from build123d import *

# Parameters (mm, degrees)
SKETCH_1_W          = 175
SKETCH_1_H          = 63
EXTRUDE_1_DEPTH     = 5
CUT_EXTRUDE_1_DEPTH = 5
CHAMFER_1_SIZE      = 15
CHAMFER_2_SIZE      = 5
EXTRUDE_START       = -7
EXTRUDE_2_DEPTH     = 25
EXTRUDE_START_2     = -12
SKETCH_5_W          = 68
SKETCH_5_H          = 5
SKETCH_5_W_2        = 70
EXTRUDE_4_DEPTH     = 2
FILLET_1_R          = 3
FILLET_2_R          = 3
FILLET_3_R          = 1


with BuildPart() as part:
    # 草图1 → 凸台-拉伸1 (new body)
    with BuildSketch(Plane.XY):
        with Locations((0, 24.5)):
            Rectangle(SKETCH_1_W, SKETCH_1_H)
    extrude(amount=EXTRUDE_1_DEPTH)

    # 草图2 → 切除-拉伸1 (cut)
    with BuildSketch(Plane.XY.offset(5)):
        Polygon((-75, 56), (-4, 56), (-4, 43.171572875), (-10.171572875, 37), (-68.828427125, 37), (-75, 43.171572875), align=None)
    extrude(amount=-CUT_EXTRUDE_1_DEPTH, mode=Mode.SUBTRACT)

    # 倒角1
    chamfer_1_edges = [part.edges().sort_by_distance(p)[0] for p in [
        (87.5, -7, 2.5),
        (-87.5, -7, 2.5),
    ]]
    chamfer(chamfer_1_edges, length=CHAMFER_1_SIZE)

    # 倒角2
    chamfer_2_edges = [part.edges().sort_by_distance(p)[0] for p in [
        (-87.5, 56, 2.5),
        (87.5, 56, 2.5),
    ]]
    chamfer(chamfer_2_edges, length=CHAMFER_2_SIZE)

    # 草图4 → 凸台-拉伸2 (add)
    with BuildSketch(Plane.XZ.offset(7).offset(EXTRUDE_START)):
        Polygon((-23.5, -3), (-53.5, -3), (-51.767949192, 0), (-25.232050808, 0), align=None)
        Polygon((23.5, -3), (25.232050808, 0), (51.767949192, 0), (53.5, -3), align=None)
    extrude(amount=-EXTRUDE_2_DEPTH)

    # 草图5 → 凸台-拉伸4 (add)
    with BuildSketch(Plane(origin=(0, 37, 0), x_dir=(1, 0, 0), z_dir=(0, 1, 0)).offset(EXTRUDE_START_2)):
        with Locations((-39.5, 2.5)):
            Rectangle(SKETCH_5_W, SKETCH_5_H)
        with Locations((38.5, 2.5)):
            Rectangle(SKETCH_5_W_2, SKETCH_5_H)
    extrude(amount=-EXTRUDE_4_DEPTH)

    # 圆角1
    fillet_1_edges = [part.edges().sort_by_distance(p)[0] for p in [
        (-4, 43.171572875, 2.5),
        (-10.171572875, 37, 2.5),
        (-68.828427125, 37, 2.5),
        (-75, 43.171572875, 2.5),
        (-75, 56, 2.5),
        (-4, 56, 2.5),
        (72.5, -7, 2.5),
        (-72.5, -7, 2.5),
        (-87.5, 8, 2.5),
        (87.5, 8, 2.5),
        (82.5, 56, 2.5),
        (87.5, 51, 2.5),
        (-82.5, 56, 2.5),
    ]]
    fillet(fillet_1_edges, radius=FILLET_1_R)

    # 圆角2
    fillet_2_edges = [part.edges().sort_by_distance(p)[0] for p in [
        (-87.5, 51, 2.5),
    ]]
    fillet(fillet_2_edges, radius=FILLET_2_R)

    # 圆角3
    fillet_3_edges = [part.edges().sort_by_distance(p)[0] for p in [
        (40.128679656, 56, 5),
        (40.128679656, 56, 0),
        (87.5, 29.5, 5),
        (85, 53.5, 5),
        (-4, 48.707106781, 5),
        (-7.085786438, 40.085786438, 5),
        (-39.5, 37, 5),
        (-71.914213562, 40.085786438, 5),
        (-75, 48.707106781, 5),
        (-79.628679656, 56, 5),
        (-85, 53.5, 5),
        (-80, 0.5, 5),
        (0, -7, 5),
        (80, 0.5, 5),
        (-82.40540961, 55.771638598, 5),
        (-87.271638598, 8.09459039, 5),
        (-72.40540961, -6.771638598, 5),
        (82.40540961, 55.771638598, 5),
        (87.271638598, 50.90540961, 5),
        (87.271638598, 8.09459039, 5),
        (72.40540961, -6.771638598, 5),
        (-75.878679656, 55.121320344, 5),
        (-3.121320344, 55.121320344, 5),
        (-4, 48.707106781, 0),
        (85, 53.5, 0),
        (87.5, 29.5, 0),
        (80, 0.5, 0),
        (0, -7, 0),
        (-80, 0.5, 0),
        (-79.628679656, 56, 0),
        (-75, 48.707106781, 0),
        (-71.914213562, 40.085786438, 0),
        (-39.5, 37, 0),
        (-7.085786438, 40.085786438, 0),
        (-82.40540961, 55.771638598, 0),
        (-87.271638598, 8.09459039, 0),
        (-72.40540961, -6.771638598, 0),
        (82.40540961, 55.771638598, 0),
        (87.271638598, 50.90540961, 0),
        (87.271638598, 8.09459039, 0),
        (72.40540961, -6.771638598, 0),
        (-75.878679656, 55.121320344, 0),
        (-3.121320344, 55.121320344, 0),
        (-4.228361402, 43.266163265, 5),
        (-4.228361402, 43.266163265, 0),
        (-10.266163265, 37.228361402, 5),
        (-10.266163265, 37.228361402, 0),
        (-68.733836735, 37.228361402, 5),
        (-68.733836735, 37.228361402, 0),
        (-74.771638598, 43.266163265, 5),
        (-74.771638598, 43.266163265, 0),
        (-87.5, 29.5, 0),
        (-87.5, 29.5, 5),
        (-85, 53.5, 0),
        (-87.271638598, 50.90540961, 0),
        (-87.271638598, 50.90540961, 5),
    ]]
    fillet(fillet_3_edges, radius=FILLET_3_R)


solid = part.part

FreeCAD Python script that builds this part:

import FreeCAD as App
import Part
import Sketcher

V = App.Vector
Q = App.Units.Quantity


def edges_at(feature, points):
    """Names of the edges that pass closest to the given points."""
    edges = feature.Shape.Edges
    near = lambda p: min(range(len(edges)), key=lambda i: edges[i].distToShape(Part.Vertex(*p))[0])
    return sorted({f"Edge{near(p) + 1}" for p in points})

doc = App.newDocument("Part")
params = doc.addObject("Spreadsheet::Sheet", "Params")
for row, (alias, value) in enumerate([
    ("sketch1_width", "175 mm"),
    ("sketch1_height", "63 mm"),
    ("pad1_length", "5 mm"),
    ("sketch2_width", "71 mm"),
    ("pocket1_length", "5 mm"),
    ("chamfer_size", "15 mm"),
    ("chamfer2_size", "5 mm"),
    ("sketch3_width", "30 mm"),
    ("pad2_length", "25 mm"),
    ("sketch4_width", "68 mm"),
    ("sketch4_width2", "70 mm"),
    ("sketch4_height", "5 mm"),
    ("pad3_length", "2 mm"),
    ("fillet_radius", "3 mm"),
    ("fillet2_radius", "3 mm"),
    ("fillet3_radius", "1 mm"),
], start=1):
    params.set(f"A{row}", alias)
    params.set(f"B{row}", "=" + value)
    params.setAlias(f"B{row}", alias)

body = doc.addObject("PartDesign::Body", "Body")

sketch1 = doc.addObject("Sketcher::SketchObject", "Sketch")
body.addObject(sketch1)
sketch1.AttachmentSupport = (doc.XY_Plane, [""])
sketch1.MapMode = "FlatFace"
sketch1.addGeometry(Part.LineSegment(V(-88, 56, 0), V(-88, -7, 0)), False)
sketch1.addGeometry(Part.LineSegment(V(-88, -7, 0), V(88, -7, 0)), False)
sketch1.addGeometry(Part.LineSegment(V(88, -7, 0), V(88, 56, 0)), False)
sketch1.addGeometry(Part.LineSegment(V(88, 56, 0), V(-88, 56, 0)), False)
sketch1.addConstraint(Sketcher.Constraint("Coincident", 0, 2, 1, 1))
sketch1.addConstraint(Sketcher.Constraint("Coincident", 1, 2, 2, 1))
sketch1.addConstraint(Sketcher.Constraint("Coincident", 2, 2, 3, 1))
sketch1.addConstraint(Sketcher.Constraint("Coincident", 3, 2, 0, 1))
sketch1.addConstraint(Sketcher.Constraint("Vertical", 0))
sketch1.addConstraint(Sketcher.Constraint("Horizontal", 1))
sketch1.addConstraint(Sketcher.Constraint("Vertical", 2))
sketch1.addConstraint(Sketcher.Constraint("Horizontal", 3))
sketch1.addConstraint(Sketcher.Constraint("DistanceX", 1, 1, 1, 2, Q("175 mm")))
sketch1.addConstraint(Sketcher.Constraint("DistanceY", 0, 2, 0, 1, Q("63 mm")))
sketch1.addConstraint(Sketcher.Constraint("DistanceY", 0, 2, -1, 1, Q("7 mm")))
sketch1.addConstraint(Sketcher.Constraint("DistanceX", 0, 2, -1, 1, Q("87.5 mm")))
sketch1.setExpression("Constraints[8]", "Params.sketch1_width")
sketch1.setExpression("Constraints[9]", "Params.sketch1_height")
pad1 = doc.addObject("PartDesign::Pad", "Pad")
body.addObject(pad1)
pad1.Profile = sketch1
pad1.setExpression("Length", "Params.pad1_length")

sketch2 = doc.addObject("Sketcher::SketchObject", "Sketch001")
body.addObject(sketch2)
sketch2.AttachmentSupport = (doc.XY_Plane, [""])
sketch2.MapMode = "FlatFace"
sketch2.AttachmentOffset = App.Placement(V(0, 0, 5), App.Rotation())
sketch2.addGeometry(Part.LineSegment(V(-4, 56, 0), V(-75, 56, 0)), False)
sketch2.addGeometry(Part.LineSegment(V(-75, 56, 0), V(-75, 43, 0)), False)
sketch2.addGeometry(Part.LineSegment(V(-75, 43, 0), V(-69, 37, 0)), False)
sketch2.addGeometry(Part.LineSegment(V(-69, 37, 0), V(-10, 37, 0)), False)
sketch2.addGeometry(Part.LineSegment(V(-10, 37, 0), V(-4, 43, 0)), False)
sketch2.addGeometry(Part.LineSegment(V(-4, 43, 0), V(-4, 56, 0)), False)
sketch2.addConstraint(Sketcher.Constraint("Coincident", 0, 2, 1, 1))
sketch2.addConstraint(Sketcher.Constraint("Coincident", 1, 2, 2, 1))
sketch2.addConstraint(Sketcher.Constraint("Coincident", 2, 2, 3, 1))
sketch2.addConstraint(Sketcher.Constraint("Coincident", 3, 2, 4, 1))
sketch2.addConstraint(Sketcher.Constraint("Coincident", 4, 2, 5, 1))
sketch2.addConstraint(Sketcher.Constraint("Coincident", 5, 2, 0, 1))
sketch2.addConstraint(Sketcher.Constraint("Horizontal", 0))
sketch2.addConstraint(Sketcher.Constraint("Vertical", 1))
sketch2.addConstraint(Sketcher.Constraint("Horizontal", 3))
sketch2.addConstraint(Sketcher.Constraint("Vertical", 5))
sketch2.addConstraint(Sketcher.Constraint("Perpendicular", 2, 4))
sketch2.addConstraint(Sketcher.Constraint("Horizontal", 1, 2, 4, 2))
sketch2.addConstraint(Sketcher.Constraint("Equal", 2, 4))
sketch2.addConstraint(Sketcher.Constraint("DistanceX", 0, 2, 0, 1, Q("71 mm")))
sketch2.addConstraint(Sketcher.Constraint("DistanceX", 0, 2, -1, 1, Q("75 mm")))
sketch2.addConstraint(Sketcher.Constraint("DistanceY", -1, 1, 0, 2, Q("56 mm")))
sketch2.addConstraint(Sketcher.Constraint("DistanceY", -1, 1, 2, 2, Q("37 mm")))
sketch2.addConstraint(Sketcher.Constraint("DistanceX", 3, 1, 3, 2, Q("58.656854 mm")))
sketch2.setExpression("Constraints[13]", "Params.sketch2_width")
pocket1 = doc.addObject("PartDesign::Pocket", "Pocket")
body.addObject(pocket1)
pocket1.Profile = sketch2
pocket1.setExpression("Length", "Params.pocket1_length")
doc.recompute()

chamfer = doc.addObject("PartDesign::Chamfer", "Chamfer")
body.addObject(chamfer)
chamfer.Base = (pocket1, edges_at(pocket1, [(87.5, -7, 2.5), (-87.5, -7, 2.5)]))
chamfer.setExpression("Size", "Params.chamfer_size")
doc.recompute()

chamfer2 = doc.addObject("PartDesign::Chamfer", "Chamfer001")
body.addObject(chamfer2)
chamfer2.Base = (chamfer, edges_at(chamfer, [(-87.5, 56, 2.5), (87.5, 56, 2.5)]))
chamfer2.setExpression("Size", "Params.chamfer2_size")

sketch3 = doc.addObject("Sketcher::SketchObject", "Sketch002")
body.addObject(sketch3)
sketch3.AttachmentSupport = (doc.XZ_Plane, [""])
sketch3.MapMode = "FlatFace"
sketch3.addGeometry(Part.LineSegment(V(-53.5, -3, 0), V(-23.5, -3, 0)), False)
sketch3.addGeometry(Part.LineSegment(V(-23.5, -3, 0), V(-25.2, 0, 0)), False)
sketch3.addGeometry(Part.LineSegment(V(-25.2, 0, 0), V(-51.8, 0, 0)), False)
sketch3.addGeometry(Part.LineSegment(V(-51.8, 0, 0), V(-53.5, -3, 0)), False)
sketch3.addGeometry(Part.LineSegment(V(25.2, 0, 0), V(23.5, -3, 0)), False)
sketch3.addGeometry(Part.LineSegment(V(23.5, -3, 0), V(53.5, -3, 0)), False)
sketch3.addGeometry(Part.LineSegment(V(53.5, -3, 0), V(51.8, 0, 0)), False)
sketch3.addGeometry(Part.LineSegment(V(51.8, 0, 0), V(25.2, 0, 0)), False)
sketch3.addConstraint(Sketcher.Constraint("Coincident", 0, 2, 1, 1))
sketch3.addConstraint(Sketcher.Constraint("Coincident", 1, 2, 2, 1))
sketch3.addConstraint(Sketcher.Constraint("Coincident", 2, 2, 3, 1))
sketch3.addConstraint(Sketcher.Constraint("Coincident", 3, 2, 0, 1))
sketch3.addConstraint(Sketcher.Constraint("Coincident", 4, 2, 5, 1))
sketch3.addConstraint(Sketcher.Constraint("Coincident", 5, 2, 6, 1))
sketch3.addConstraint(Sketcher.Constraint("Coincident", 6, 2, 7, 1))
sketch3.addConstraint(Sketcher.Constraint("Coincident", 7, 2, 4, 1))
sketch3.addConstraint(Sketcher.Constraint("Horizontal", 0))
sketch3.addConstraint(Sketcher.Constraint("Horizontal", 2))
sketch3.addConstraint(Sketcher.Constraint("Horizontal", 5))
sketch3.addConstraint(Sketcher.Constraint("Horizontal", 7))
sketch3.addConstraint(Sketcher.Constraint("Symmetric", 2, 2, 6, 2, -1, 1))
sketch3.addConstraint(Sketcher.Constraint("Symmetric", 0, 2, 4, 2, -2))
sketch3.addConstraint(Sketcher.Constraint("Symmetric", 1, 2, 7, 2, -2))
sketch3.addConstraint(Sketcher.Constraint("Parallel", 3, 4))
sketch3.addConstraint(Sketcher.Constraint("Parallel", 1, 6))
sketch3.addConstraint(Sketcher.Constraint("DistanceX", 0, 1, 0, 2, Q("30 mm")))
sketch3.addConstraint(Sketcher.Constraint("Angle", 1, Q("120 deg")))
sketch3.addConstraint(Sketcher.Constraint("DistanceY", 0, 2, -1, 1, Q("3 mm")))
sketch3.addConstraint(Sketcher.Constraint("DistanceX", 0, 2, 4, 2, Q("47 mm")))
sketch3.setExpression("Constraints[17]", "Params.sketch3_width")
pad2 = doc.addObject("PartDesign::Pad", "Pad001")
body.addObject(pad2)
pad2.Profile = sketch3
pad2.setExpression("Length", "Params.pad2_length")
pad2.Reversed = True

sketch4 = doc.addObject("Sketcher::SketchObject", "Sketch003")
body.addObject(sketch4)
sketch4.AttachmentSupport = (doc.XZ_Plane, [""])
sketch4.MapMode = "FlatFace"
sketch4.AttachmentOffset = App.Placement(V(0, 0, -25), App.Rotation())
sketch4.addGeometry(Part.LineSegment(V(-74, -5, 0), V(-74, 0, 0)), False)
sketch4.addGeometry(Part.LineSegment(V(-74, 0, 0), V(-6, 0, 0)), False)
sketch4.addGeometry(Part.LineSegment(V(-6, 0, 0), V(-6, -5, 0)), False)
sketch4.addGeometry(Part.LineSegment(V(-6, -5, 0), V(-74, -5, 0)), False)
sketch4.addGeometry(Part.LineSegment(V(4, -5, 0), V(4, 0, 0)), False)
sketch4.addGeometry(Part.LineSegment(V(4, 0, 0), V(74, 0, 0)), False)
sketch4.addGeometry(Part.LineSegment(V(74, 0, 0), V(74, -5, 0)), False)
sketch4.addGeometry(Part.LineSegment(V(74, -5, 0), V(4, -5, 0)), False)
sketch4.addConstraint(Sketcher.Constraint("Coincident", 0, 2, 1, 1))
sketch4.addConstraint(Sketcher.Constraint("Coincident", 1, 2, 2, 1))
sketch4.addConstraint(Sketcher.Constraint("Coincident", 2, 2, 3, 1))
sketch4.addConstraint(Sketcher.Constraint("Coincident", 3, 2, 0, 1))
sketch4.addConstraint(Sketcher.Constraint("Coincident", 4, 2, 5, 1))
sketch4.addConstraint(Sketcher.Constraint("Coincident", 5, 2, 6, 1))
sketch4.addConstraint(Sketcher.Constraint("Coincident", 6, 2, 7, 1))
sketch4.addConstraint(Sketcher.Constraint("Coincident", 7, 2, 4, 1))
sketch4.addConstraint(Sketcher.Constraint("Vertical", 0))
sketch4.addConstraint(Sketcher.Constraint("Horizontal", 1))
sketch4.addConstraint(Sketcher.Constraint("Vertical", 2))
sketch4.addConstraint(Sketcher.Constraint("Horizontal", 3))
sketch4.addConstraint(Sketcher.Constraint("Vertical", 4))
sketch4.addConstraint(Sketcher.Constraint("Horizontal", 5))
sketch4.addConstraint(Sketcher.Constraint("Vertical", 6))
sketch4.addConstraint(Sketcher.Constraint("Horizontal", 7))
sketch4.addConstraint(Sketcher.Constraint("Symmetric", 0, 2, 5, 2, -1, 1))
sketch4.addConstraint(Sketcher.Constraint("PointOnObject", 0, 2, -1))
sketch4.addConstraint(Sketcher.Constraint("Horizontal", 3, 2, 6, 2))
sketch4.addConstraint(Sketcher.Constraint("DistanceX", 1, 1, 1, 2, Q("68 mm")))
sketch4.addConstraint(Sketcher.Constraint("DistanceX", 5, 1, 5, 2, Q("70 mm")))
sketch4.addConstraint(Sketcher.Constraint("DistanceY", 0, 1, 0, 2, Q("5 mm")))
sketch4.addConstraint(Sketcher.Constraint("DistanceX", 1, 2, 4, 2, Q("9 mm")))
sketch4.setExpression("Constraints[19]", "Params.sketch4_width")
sketch4.setExpression("Constraints[20]", "Params.sketch4_width2")
sketch4.setExpression("Constraints[21]", "Params.sketch4_height")
pad3 = doc.addObject("PartDesign::Pad", "Pad002")
body.addObject(pad3)
pad3.Profile = sketch4
pad3.setExpression("Length", "Params.pad3_length")
doc.recompute()

fillet = doc.addObject("PartDesign::Fillet", "Fillet")
body.addObject(fillet)
fillet.Base = (pad3, edges_at(pad3, [
    (-4, 43.172, 2.5),
    (-10.172, 37, 2.5),
    (-68.828, 37, 2.5),
    (-75, 43.172, 2.5),
    (-75, 56, 2.5),
    (-4, 56, 2.5),
    (72.5, -7, 2.5),
    (-72.5, -7, 2.5),
    (-87.5, 8, 2.5),
    (87.5, 8, 2.5),
    (82.5, 56, 2.5),
    (87.5, 51, 2.5),
    (-82.5, 56, 2.5),
]))
fillet.setExpression("Radius", "Params.fillet_radius")
doc.recompute()

fillet2 = doc.addObject("PartDesign::Fillet", "Fillet001")
body.addObject(fillet2)
fillet2.Base = (fillet, edges_at(fillet, [(-87.5, 51, 2.5)]))
fillet2.setExpression("Radius", "Params.fillet2_radius")
doc.recompute()

fillet3 = doc.addObject("PartDesign::Fillet", "Fillet002")
body.addObject(fillet3)
fillet3.Base = (fillet2, edges_at(fillet2, [
    (40.129, 56, 5),
    (40.129, 56, 0),
    (87.5, 29.5, 5),
    (85, 53.5, 5),
    (-4, 48.707, 5),
    (-7.086, 40.086, 5),
    (-39.5, 37, 5),
    (-71.914, 40.086, 5),
    (-75, 48.707, 5),
    (-79.629, 56, 5),
    (-85, 53.5, 5),
    (-80, 0.5, 5),
    (0, -7, 5),
    (80, 0.5, 5),
    (-82.405, 55.772, 5),
    (-87.272, 8.095, 5),
    (-72.405, -6.772, 5),
    (82.405, 55.772, 5),
    (87.272, 50.905, 5),
    (87.272, 8.095, 5),
    (72.405, -6.772, 5),
    (-75.879, 55.121, 5),
    (-3.121, 55.121, 5),
    (-4, 48.707, 0),
    (85, 53.5, 0),
    (87.5, 29.5, 0),
    (80, 0.5, 0),
    (0, -7, 0),
    (-80, 0.5, 0),
    (-79.629, 56, 0),
    (-75, 48.707, 0),
    (-71.914, 40.086, 0),
    (-39.5, 37, 0),
    (-7.086, 40.086, 0),
    (-82.405, 55.772, 0),
    (-87.272, 8.095, 0),
    (-72.405, -6.772, 0),
    (82.405, 55.772, 0),
    (87.272, 50.905, 0),
    (87.272, 8.095, 0),
    (72.405, -6.772, 0),
    (-75.879, 55.121, 0),
    (-3.121, 55.121, 0),
    (-4.228, 43.266, 5),
    (-4.228, 43.266, 0),
    (-10.266, 37.228, 5),
    (-10.266, 37.228, 0),
    (-68.734, 37.228, 5),
    (-68.734, 37.228, 0),
    (-74.772, 43.266, 5),
    (-74.772, 43.266, 0),
    (-87.5, 29.5, 0),
    (-87.5, 29.5, 5),
    (-85, 53.5, 0),
    (-87.272, 50.905, 0),
    (-87.272, 50.905, 5),
]))
fillet3.setExpression("Radius", "Params.fillet3_radius")

doc.recompute()
